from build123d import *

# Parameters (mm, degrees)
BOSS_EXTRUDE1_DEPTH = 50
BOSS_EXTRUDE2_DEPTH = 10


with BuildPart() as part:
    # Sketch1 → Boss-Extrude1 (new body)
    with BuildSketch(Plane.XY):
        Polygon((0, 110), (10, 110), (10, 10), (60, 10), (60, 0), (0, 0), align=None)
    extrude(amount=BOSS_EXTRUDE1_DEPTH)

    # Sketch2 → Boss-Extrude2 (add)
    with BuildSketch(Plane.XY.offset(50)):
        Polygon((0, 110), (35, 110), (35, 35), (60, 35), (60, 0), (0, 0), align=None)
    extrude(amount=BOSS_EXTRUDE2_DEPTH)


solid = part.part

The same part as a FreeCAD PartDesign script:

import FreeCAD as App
import Part
import Sketcher
from FreeCAD import Vector
Q = App.Units.Quantity

doc = App.newDocument("Part")
body = doc.addObject("PartDesign::Body", "Body")

# Sketch on XY plane
sketch1 = body.newObject("Sketcher::SketchObject", "Sketch")
sketch1.AttachmentSupport = (doc.getObject("XY_Plane"), [""])
sketch1.MapMode = "FlatFace"
sketch1.addGeometry([
    Part.LineSegment(Vector(10, 110, 0), Vector(0, 110, 0)),  # 0
    Part.LineSegment(Vector(0, 110, 0), Vector(0, 0, 0)),  # 1
    Part.LineSegment(Vector(0, 0, 0), Vector(60, 0, 0)),  # 2
    Part.LineSegment(Vector(60, 0, 0), Vector(60, 10, 0)),  # 3
    Part.LineSegment(Vector(60, 10, 0), Vector(10, 10, 0)),  # 4
    Part.LineSegment(Vector(10, 10, 0), Vector(10, 110, 0)),  # 5
], False)
sketch1.addConstraint([
    Sketcher.Constraint("Coincident", 0, 2, 1, 1),
    Sketcher.Constraint("Coincident", 1, 2, 2, 1),
    Sketcher.Constraint("Coincident", 2, 2, 3, 1),
    Sketcher.Constraint("Coincident", 3, 2, 4, 1),
    Sketcher.Constraint("Coincident", 4, 2, 5, 1),
    Sketcher.Constraint("Coincident", 5, 2, 0, 1),
    Sketcher.Constraint("Horizontal", 0),
    Sketcher.Constraint("Vertical", 1),
    Sketcher.Constraint("Horizontal", 2),
    Sketcher.Constraint("Vertical", 3),
    Sketcher.Constraint("Horizontal", 4),
    Sketcher.Constraint("Vertical", 5),
    Sketcher.Constraint("Coincident", 1, 2, -1, 1),
    Sketcher.Constraint("Equal", 0, 3),
    Sketcher.Constraint("DistanceX", 0, 2, 0, 1, Q("10 mm")),
    Sketcher.Constraint("DistanceX", 2, 1, 2, 2, Q("60 mm")),
    Sketcher.Constraint("DistanceY", 1, 2, 1, 1, Q("110 mm")),
])
pad1 = body.newObject("PartDesign::Pad", "Pad")
pad1.Profile = sketch1
pad1.Length = 50

# Sketch on XY plane
sketch2 = body.newObject("Sketcher::SketchObject", "Sketch001")
sketch2.AttachmentSupport = (doc.getObject("XY_Plane"), [""])
sketch2.MapMode = "FlatFace"
sketch2.AttachmentOffset = App.Placement(Vector(0, 0, 50), App.Rotation())
sketch2.addGeometry([
    Part.LineSegment(Vector(35, 110, 0), Vector(0, 110, 0)),  # 0
    Part.LineSegment(Vector(0, 110, 0), Vector(0, 0, 0)),  # 1
    Part.LineSegment(Vector(0, 0, 0), Vector(60, 0, 0)),  # 2
    Part.LineSegment(Vector(60, 0, 0), Vector(60, 35, 0)),  # 3
    Part.LineSegment(Vector(60, 35, 0), Vector(35, 35, 0)),  # 4
    Part.LineSegment(Vector(35, 35, 0), Vector(35, 110, 0)),  # 5
], False)
sketch2.addConstraint([
    Sketcher.Constraint("Coincident", 0, 2, 1, 1),
    Sketcher.Constraint("Coincident", 1, 2, 2, 1),
    Sketcher.Constraint("Coincident", 2, 2, 3, 1),
    Sketcher.Constraint("Coincident", 3, 2, 4, 1),
    Sketcher.Constraint("Coincident", 4, 2, 5, 1),
    Sketcher.Constraint("Coincident", 5, 2, 0, 1),
    Sketcher.Constraint("Horizontal", 0),
    Sketcher.Constraint("Vertical", 1),
    Sketcher.Constraint("Horizontal", 2),
    Sketcher.Constraint("Vertical", 3),
    Sketcher.Constraint("Horizontal", 4),
    Sketcher.Constraint("Vertical", 5),
    Sketcher.Constraint("Coincident", 1, 2, -1, 1),
    Sketcher.Constraint("Equal", 0, 3),
    Sketcher.Constraint("DistanceX", 0, 2, 0, 1, Q("35 mm")),
    Sketcher.Constraint("DistanceX", 2, 1, 2, 2, Q("60 mm")),
    Sketcher.Constraint("DistanceY", 1, 2, 1, 1, Q("110 mm")),
])
pad2 = body.newObject("PartDesign::Pad", "Pad001")
pad2.Profile = sketch2
pad2.Length = 10

doc.recompute()
